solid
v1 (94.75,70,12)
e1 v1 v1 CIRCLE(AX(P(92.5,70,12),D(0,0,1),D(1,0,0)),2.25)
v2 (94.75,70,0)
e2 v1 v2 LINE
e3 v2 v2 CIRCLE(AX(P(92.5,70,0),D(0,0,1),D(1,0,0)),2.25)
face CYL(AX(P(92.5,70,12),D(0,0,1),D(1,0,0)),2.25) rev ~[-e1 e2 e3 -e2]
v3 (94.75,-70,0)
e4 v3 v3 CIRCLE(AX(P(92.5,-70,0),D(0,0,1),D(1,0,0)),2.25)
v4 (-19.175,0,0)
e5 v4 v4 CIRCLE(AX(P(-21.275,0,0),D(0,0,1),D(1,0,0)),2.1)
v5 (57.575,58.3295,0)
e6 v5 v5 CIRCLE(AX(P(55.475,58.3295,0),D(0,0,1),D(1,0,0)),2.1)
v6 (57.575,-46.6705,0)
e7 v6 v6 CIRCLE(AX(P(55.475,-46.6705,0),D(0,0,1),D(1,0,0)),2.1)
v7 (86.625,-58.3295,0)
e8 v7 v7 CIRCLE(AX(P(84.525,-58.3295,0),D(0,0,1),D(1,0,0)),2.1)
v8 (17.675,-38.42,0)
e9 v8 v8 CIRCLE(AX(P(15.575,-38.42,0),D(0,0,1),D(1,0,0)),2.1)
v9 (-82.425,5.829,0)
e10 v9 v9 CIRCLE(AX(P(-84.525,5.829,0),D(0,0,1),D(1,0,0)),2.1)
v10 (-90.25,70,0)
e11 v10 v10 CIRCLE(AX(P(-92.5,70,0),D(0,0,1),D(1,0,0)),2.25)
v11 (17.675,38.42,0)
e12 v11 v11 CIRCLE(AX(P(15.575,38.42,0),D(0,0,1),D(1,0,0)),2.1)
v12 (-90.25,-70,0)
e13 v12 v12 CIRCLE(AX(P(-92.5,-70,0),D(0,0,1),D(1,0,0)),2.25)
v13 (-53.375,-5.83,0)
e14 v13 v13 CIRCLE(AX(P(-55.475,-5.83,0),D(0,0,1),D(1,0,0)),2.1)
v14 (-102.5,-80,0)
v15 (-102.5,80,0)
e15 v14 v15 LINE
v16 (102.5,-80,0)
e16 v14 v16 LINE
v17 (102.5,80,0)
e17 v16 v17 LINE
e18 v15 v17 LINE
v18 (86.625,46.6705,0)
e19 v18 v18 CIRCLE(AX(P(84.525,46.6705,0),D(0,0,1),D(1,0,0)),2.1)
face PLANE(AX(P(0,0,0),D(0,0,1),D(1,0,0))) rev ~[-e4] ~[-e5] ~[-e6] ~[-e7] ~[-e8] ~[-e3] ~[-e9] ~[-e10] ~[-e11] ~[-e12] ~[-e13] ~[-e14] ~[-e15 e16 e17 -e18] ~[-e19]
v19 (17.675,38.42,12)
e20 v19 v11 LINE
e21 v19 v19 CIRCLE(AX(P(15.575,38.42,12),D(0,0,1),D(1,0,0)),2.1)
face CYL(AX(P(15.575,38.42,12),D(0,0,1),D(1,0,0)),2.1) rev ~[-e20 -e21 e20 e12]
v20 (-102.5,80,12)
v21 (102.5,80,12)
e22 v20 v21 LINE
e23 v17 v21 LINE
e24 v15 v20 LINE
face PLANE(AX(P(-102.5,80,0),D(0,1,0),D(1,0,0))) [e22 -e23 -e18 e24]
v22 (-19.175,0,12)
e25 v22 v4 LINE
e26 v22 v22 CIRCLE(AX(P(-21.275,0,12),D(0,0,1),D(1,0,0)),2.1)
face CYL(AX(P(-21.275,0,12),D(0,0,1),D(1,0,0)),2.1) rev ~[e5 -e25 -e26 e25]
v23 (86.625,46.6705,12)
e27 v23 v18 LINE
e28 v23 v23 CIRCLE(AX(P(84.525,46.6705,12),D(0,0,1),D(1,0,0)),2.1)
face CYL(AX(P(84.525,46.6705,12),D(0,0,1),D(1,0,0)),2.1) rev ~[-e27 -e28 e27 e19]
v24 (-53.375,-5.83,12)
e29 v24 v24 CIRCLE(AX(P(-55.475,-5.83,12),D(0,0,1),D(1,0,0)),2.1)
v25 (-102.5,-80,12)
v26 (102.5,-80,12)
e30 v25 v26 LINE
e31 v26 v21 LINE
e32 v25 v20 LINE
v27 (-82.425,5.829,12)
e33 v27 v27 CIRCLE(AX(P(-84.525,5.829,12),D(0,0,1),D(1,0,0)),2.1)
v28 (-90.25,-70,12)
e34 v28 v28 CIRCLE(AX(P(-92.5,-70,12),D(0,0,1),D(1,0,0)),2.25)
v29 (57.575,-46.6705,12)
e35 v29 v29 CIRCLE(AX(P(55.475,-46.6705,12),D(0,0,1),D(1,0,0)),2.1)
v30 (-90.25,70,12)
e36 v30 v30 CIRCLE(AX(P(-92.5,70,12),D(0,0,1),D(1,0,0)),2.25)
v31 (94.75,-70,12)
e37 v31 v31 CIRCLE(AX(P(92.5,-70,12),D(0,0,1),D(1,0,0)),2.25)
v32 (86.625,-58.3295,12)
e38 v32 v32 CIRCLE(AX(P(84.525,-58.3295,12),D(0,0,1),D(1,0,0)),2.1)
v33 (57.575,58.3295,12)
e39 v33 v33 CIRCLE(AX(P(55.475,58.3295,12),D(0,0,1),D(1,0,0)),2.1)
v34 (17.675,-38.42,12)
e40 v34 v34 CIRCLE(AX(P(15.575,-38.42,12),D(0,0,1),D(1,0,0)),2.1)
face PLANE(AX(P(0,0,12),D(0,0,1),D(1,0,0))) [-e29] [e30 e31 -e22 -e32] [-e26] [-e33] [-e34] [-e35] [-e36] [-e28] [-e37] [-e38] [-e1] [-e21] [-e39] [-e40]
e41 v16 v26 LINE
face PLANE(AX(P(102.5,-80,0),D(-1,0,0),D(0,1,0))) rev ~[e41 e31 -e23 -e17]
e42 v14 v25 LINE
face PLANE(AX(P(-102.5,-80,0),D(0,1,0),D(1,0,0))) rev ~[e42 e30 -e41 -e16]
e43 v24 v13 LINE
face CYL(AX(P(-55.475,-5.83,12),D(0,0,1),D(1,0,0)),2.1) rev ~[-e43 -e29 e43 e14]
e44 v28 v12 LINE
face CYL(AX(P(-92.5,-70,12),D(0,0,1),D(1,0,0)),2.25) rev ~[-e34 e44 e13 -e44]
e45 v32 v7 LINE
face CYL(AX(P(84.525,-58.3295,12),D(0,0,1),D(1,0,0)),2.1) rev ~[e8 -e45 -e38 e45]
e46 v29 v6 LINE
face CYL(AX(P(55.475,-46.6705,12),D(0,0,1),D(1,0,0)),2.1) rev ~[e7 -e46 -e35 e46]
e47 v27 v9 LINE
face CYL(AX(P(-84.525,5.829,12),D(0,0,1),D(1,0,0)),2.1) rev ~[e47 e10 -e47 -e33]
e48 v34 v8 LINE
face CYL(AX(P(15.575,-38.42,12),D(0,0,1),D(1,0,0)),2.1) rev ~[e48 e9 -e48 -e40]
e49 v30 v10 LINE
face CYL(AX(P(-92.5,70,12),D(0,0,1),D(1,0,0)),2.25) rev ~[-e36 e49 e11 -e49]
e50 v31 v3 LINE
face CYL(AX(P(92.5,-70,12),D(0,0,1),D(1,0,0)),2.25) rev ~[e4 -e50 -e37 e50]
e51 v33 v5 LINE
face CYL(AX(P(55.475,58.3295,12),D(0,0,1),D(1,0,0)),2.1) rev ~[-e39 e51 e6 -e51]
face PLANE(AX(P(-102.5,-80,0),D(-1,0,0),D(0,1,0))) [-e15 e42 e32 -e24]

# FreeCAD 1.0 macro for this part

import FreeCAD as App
import Part
import Sketcher

doc = App.newDocument("Part")
params = doc.addObject("Spreadsheet::Sheet", "Params")
for row, (alias, value) in enumerate([
    ("sketch1_width", "205 mm"),
    ("sketch1_height", "160 mm"),
    ("pad1_length", "12 mm"),
    ("sketch2_diameter", "4.2 mm"),
    ("sketch3_diameter", "4.5 mm"),
], start=1):
    params.set(f"A{row}", alias)
    params.set(f"B{row}", "=" + value)
    params.setAlias(f"B{row}", alias)

body = doc.addObject("PartDesign::Body", "Body")

# Sketch on XY plane
sketch1 = doc.addObject("Sketcher::SketchObject", "Sketch")
body.addObject(sketch1)
sketch1.AttachmentSupport = (doc.XY_Plane, [""])
sketch1.MapMode = "FlatFace"
sketch1.addGeometry(Part.LineSegment(App.Vector(-102.5, 80, 0), App.Vector(-102.5, -80, 0)), False)
sketch1.addGeometry(Part.LineSegment(App.Vector(-102.5, -80, 0), App.Vector(102.5, -80, 0)), False)
sketch1.addGeometry(Part.LineSegment(App.Vector(102.5, -80, 0), App.Vector(102.5, 80, 0)), False)
sketch1.addGeometry(Part.LineSegment(App.Vector(102.5, 80, 0), App.Vector(-102.5, 80, 0)), False)
sketch1.addConstraint(Sketcher.Constraint("Coincident", 0, 2, 1, 1))
sketch1.addConstraint(Sketcher.Constraint("Coincident", 1, 2, 2, 1))
sketch1.addConstraint(Sketcher.Constraint("Coincident", 2, 2, 3, 1))
sketch1.addConstraint(Sketcher.Constraint("Coincident", 3, 2, 0, 1))
sketch1.addConstraint(Sketcher.Constraint("Vertical", 0))
sketch1.addConstraint(Sketcher.Constraint("Horizontal", 1))
sketch1.addConstraint(Sketcher.Constraint("Vertical", 2))
sketch1.addConstraint(Sketcher.Constraint("Horizontal", 3))
sketch1.addConstraint(Sketcher.Constraint("Symmetric", 0, 2, 2, 2, -1, 1))
sketch1.addConstraint(Sketcher.Constraint("DistanceX", 1, 1, 1, 2, 205.0))
sketch1.addConstraint(Sketcher.Constraint("DistanceY", 0, 2, 0, 1, 160.0))
sketch1.setExpression("Constraints[9]", "Params.sketch1_width")
sketch1.setExpression("Constraints[10]", "Params.sketch1_height")
pad1 = doc.addObject("PartDesign::Pad", "Pad")
body.addObject(pad1)
pad1.Profile = sketch1
pad1.setExpression("Length", "Params.pad1_length")

# Sketch on XY plane
sketch2 = doc.addObject("Sketcher::SketchObject", "Sketch001")
body.addObject(sketch2)
sketch2.AttachmentSupport = (doc.XY_Plane, [""])
sketch2.MapMode = "FlatFace"
sketch2.AttachmentOffset = App.Placement(App.Vector(0, 0, 12), App.Rotation())
sketch2.addGeometry(Part.Circle(App.Vector(-84.525, 5.829, 0), App.Vector(0, 0, 1), 2.1), False)
sketch2.addGeometry(Part.Circle(App.Vector(-55.475, -5.83, 0), App.Vector(0, 0, 1), 2.1), False)
sketch2.addGeometry(Part.Circle(App.Vector(-21.275, 0, 0), App.Vector(0, 0, 1), 2.1), False)
sketch2.addGeometry(Part.Circle(App.Vector(15.575, 38.42, 0), App.Vector(0, 0, 1), 2.1), False)
sketch2.addGeometry(Part.Circle(App.Vector(15.575, -38.42, 0), App.Vector(0, 0, 1), 2.1), False)
sketch2.addGeometry(Part.Circle(App.Vector(55.475, 58.3295, 0), App.Vector(0, 0, 1), 2.1), False)
sketch2.addGeometry(Part.Circle(App.Vector(84.525, 46.6705, 0), App.Vector(0, 0, 1), 2.1), False)
sketch2.addGeometry(Part.Circle(App.Vector(55.475, -46.6705, 0), App.Vector(0, 0, 1), 2.1), False)
sketch2.addGeometry(Part.Circle(App.Vector(84.525, -58.3295, 0), App.Vector(0, 0, 1), 2.1), False)
sketch2.addConstraint(Sketcher.Constraint("Equal", 0, 1))
sketch2.addConstraint(Sketcher.Constraint("Equal", 1, 2))
sketch2.addConstraint(Sketcher.Constraint("Equal", 2, 3))
sketch2.addConstraint(Sketcher.Constraint("Equal", 3, 4))
sketch2.addConstraint(Sketcher.Constraint("Equal", 4, 5))
sketch2.addConstraint(Sketcher.Constraint("Equal", 5, 6))
sketch2.addConstraint(Sketcher.Constraint("Equal", 6, 7))
sketch2.addConstraint(Sketcher.Constraint("Equal", 7, 8))
sketch2.addConstraint(Sketcher.Constraint("Symmetric", 3, 3, 4, 3, -1))
sketch2.addConstraint(Sketcher.Constraint("PointOnObject", 2, 3, -1))
sketch2.addConstraint(Sketcher.Constraint("Vertical", 5, 3, 7, 3))
sketch2.addConstraint(Sketcher.Constraint("Vertical", 6, 3, 8, 3))
sketch2.addConstraint(Sketcher.Constraint("Diameter", 0, 4.2))
sketch2.addConstraint(Sketcher.Constraint("DistanceX", 0, 3, 5, 3, 140.0))
sketch2.addConstraint(Sketcher.Constraint("DistanceX", 1, 3, 6, 3, 140.0))
sketch2.addConstraint(Sketcher.Constraint("DistanceY", 7, 3, 5, 3, 105.0))
sketch2.addConstraint(Sketcher.Constraint("DistanceY", 8, 3, 6, 3, 105.0))
sketch2.addConstraint(Sketcher.Constraint("DistanceX", 1, 3, 2, 3, 34.2))
sketch2.addConstraint(Sketcher.Constraint("DistanceX", 0, 3, 3, 3, 100.1))
sketch2.addConstraint(Sketcher.Constraint("DistanceY", 1, 3, -1, 1, 5.83))
sketch2.addConstraint(Sketcher.Constraint("DistanceY", -1, 1, 3, 3, 38.42))
sketch2.addConstraint(Sketcher.Constraint("DistanceX", 0, 3, 1, 3, 29.05))
sketch2.addConstraint(Sketcher.Constraint("DistanceX", 0, 3, -1, 1, 84.525))
sketch2.addConstraint(Sketcher.Constraint("DistanceY", -1, 1, 0, 3, 5.829))
sketch2.addConstraint(Sketcher.Constraint("DistanceY", 6, 3, 5, 3, 11.659))
sketch2.addConstraint(Sketcher.Constraint("DistanceY", -1, 1, 5, 3, 58.3295))
sketch2.setExpression("Constraints[12]", "Params.sketch2_diameter")
pocket1 = doc.addObject("PartDesign::Pocket", "Pocket")
body.addObject(pocket1)
pocket1.Profile = sketch2
pocket1.Type = "ThroughAll"

# Sketch on XY plane
sketch3 = doc.addObject("Sketcher::SketchObject", "Sketch002")
body.addObject(sketch3)
sketch3.AttachmentSupport = (doc.XY_Plane, [""])
sketch3.MapMode = "FlatFace"
sketch3.AttachmentOffset = App.Placement(App.Vector(0, 0, 12), App.Rotation())
sketch3.addGeometry(Part.Circle(App.Vector(-92.5, 70, 0), App.Vector(0, 0, 1), 2.25), False)
sketch3.addGeometry(Part.Circle(App.Vector(92.5, 70, 0), App.Vector(0, 0, 1), 2.25), False)
sketch3.addGeometry(Part.Circle(App.Vector(-92.5, -70, 0), App.Vector(0, 0, 1), 2.25), False)
sketch3.addGeometry(Part.Circle(App.Vector(92.5, -70, 0), App.Vector(0, 0, 1), 2.25), False)
sketch3.addConstraint(Sketcher.Constraint("Equal", 0, 1))
sketch3.addConstraint(Sketcher.Constraint("Equal", 1, 2))
sketch3.addConstraint(Sketcher.Constraint("Equal", 2, 3))
sketch3.addConstraint(Sketcher.Constraint("Symmetric", 1, 3, 2, 3, -1, 1))
sketch3.addConstraint(Sketcher.Constraint("Symmetric", 0, 3, 3, 3, -1, 1))
sketch3.addConstraint(Sketcher.Constraint("Symmetric", 0, 3, 1, 3, -2))
sketch3.addConstraint(Sketcher.Constraint("Diameter", 0, 4.5))
sketch3.addConstraint(Sketcher.Constraint("DistanceY", -1, 1, 0, 3, 70.0))
sketch3.addConstraint(Sketcher.Constraint("DistanceX", 0, 3, 1, 3, 185.0))
sketch3.setExpression("Constraints[6]", "Params.sketch3_diameter")
pocket2 = doc.addObject("PartDesign::Pocket", "Pocket001")
body.addObject(pocket2)
pocket2.Profile = sketch3
pocket2.Type = "ThroughAll"

doc.recompute()
